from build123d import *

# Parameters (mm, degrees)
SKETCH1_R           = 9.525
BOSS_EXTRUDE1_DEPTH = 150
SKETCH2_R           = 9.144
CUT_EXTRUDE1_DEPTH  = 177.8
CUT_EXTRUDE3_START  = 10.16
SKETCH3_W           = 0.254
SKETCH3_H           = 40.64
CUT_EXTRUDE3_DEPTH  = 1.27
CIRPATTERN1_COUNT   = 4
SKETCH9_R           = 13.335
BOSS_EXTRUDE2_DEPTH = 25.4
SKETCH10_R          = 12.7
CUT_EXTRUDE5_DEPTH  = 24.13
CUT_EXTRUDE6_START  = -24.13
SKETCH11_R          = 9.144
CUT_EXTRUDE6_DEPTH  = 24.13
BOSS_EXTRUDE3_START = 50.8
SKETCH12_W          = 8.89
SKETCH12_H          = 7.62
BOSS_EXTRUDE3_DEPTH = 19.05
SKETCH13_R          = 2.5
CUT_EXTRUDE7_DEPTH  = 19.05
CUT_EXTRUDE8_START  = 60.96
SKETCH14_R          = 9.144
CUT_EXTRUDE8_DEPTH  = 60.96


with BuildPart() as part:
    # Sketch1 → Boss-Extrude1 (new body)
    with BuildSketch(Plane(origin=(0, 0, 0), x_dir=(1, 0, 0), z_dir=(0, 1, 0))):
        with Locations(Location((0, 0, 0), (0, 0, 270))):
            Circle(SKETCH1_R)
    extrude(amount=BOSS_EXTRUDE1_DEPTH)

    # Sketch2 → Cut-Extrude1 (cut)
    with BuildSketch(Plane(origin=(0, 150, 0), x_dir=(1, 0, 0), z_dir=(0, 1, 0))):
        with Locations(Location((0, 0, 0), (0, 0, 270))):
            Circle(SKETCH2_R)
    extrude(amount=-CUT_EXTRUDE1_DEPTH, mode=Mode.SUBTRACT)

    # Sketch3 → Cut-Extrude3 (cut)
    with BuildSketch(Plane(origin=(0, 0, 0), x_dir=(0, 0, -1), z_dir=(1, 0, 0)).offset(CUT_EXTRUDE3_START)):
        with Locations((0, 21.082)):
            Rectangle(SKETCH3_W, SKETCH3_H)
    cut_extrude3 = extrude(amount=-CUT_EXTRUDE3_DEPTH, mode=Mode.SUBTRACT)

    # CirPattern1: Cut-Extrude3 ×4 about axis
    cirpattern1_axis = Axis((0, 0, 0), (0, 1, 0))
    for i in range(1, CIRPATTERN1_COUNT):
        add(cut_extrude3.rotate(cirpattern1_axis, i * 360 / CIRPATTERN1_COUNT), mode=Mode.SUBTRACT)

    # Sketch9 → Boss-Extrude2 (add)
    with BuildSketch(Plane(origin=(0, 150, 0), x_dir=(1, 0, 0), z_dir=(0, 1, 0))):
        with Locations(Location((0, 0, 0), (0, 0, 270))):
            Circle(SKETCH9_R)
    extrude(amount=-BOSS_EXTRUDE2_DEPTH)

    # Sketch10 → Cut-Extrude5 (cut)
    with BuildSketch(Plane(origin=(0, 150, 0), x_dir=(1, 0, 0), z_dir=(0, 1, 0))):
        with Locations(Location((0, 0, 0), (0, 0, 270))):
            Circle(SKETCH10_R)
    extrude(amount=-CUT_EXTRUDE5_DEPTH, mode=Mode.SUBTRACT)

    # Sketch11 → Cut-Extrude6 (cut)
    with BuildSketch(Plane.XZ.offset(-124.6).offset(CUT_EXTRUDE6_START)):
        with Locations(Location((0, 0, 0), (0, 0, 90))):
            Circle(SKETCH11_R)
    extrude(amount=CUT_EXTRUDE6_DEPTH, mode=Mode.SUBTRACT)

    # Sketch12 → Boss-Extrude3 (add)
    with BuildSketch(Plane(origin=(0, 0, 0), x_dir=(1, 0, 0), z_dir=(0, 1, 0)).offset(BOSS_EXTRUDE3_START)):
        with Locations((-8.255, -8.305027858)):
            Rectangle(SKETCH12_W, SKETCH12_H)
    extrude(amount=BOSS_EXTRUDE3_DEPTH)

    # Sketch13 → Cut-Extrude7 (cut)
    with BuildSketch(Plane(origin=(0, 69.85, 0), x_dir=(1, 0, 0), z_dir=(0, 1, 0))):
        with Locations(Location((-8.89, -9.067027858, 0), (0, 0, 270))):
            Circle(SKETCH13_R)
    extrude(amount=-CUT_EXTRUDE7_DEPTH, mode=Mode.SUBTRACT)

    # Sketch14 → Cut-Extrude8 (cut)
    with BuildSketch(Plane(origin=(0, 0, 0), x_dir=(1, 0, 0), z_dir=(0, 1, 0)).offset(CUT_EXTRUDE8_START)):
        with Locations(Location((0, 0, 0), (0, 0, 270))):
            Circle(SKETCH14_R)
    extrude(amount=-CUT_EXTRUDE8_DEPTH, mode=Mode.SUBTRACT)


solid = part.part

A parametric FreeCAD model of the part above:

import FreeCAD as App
import Part
import Sketcher
from FreeCAD import Vector
Q = App.Units.Quantity

doc = App.newDocument("Part")
body = doc.addObject("PartDesign::Body", "Body")

# Sketch on XZ plane
sketch1 = body.newObject("Sketcher::SketchObject", "Sketch")
sketch1.AttachmentSupport = (doc.getObject("XZ_Plane"), [""])
sketch1.MapMode = "FlatFace"
sketch1.addGeometry(Part.Circle(Vector(0, 0, 0), Vector(0, 0, 1), 10), False)
sketch1.addConstraint(Sketcher.Constraint("Coincident", 0, 3, -1, 1))
sketch1.addConstraint(Sketcher.Constraint("Diameter", 0, Q("0.75 in")))
pad1 = body.newObject("PartDesign::Pad", "Pad")
pad1.Profile = sketch1
pad1.Length = 150
pad1.Reversed = True

# Sketch on XZ plane
sketch2 = body.newObject("Sketcher::SketchObject", "Sketch001")
sketch2.AttachmentSupport = (doc.getObject("XZ_Plane"), [""])
sketch2.MapMode = "FlatFace"
sketch2.AttachmentOffset = App.Placement(Vector(0, 0, -150), App.Rotation())
sketch2.addGeometry(Part.Circle(Vector(0, 0, 0), Vector(0, 0, 1), 9), False)
sketch2.addConstraint(Sketcher.Constraint("Coincident", 0, 3, -1, 1))
sketch2.addConstraint(Sketcher.Constraint("Diameter", 0, Q("0.72 in")))
pocket1 = body.newObject("PartDesign::Pocket", "Pocket")
pocket1.Profile = sketch2
pocket1.Length = Q("7 in")
pocket1.Reversed = True

# Sketch on YZ plane
sketch3 = body.newObject("Sketcher::SketchObject", "Sketch002")
sketch3.AttachmentSupport = (doc.getObject("YZ_Plane"), [""])
sketch3.MapMode = "FlatFace"
sketch3.AttachmentOffset = App.Placement(Vector(0, 0, 0.4 * 25.4), App.Rotation())
sketch3.addGeometry(Part.LineSegment(Vector(41.4, 0.13, 0), Vector(0.76, 0.13, 0)), False)
sketch3.addGeometry(Part.LineSegment(Vector(0.76, 0.13, 0), Vector(0.76, -0.13, 0)), False)
sketch3.addGeometry(Part.LineSegment(Vector(0.76, -0.13, 0), Vector(41.4, -0.13, 0)), False)
sketch3.addGeometry(Part.LineSegment(Vector(41.4, -0.13, 0), Vector(41.4, 0.13, 0)), False)
sketch3.addConstraint(Sketcher.Constraint("Coincident", 0, 2, 1, 1))
sketch3.addConstraint(Sketcher.Constraint("Coincident", 1, 2, 2, 1))
sketch3.addConstraint(Sketcher.Constraint("Coincident", 2, 2, 3, 1))
sketch3.addConstraint(Sketcher.Constraint("Coincident", 3, 2, 0, 1))
sketch3.addConstraint(Sketcher.Constraint("Horizontal", 0))
sketch3.addConstraint(Sketcher.Constraint("Vertical", 1))
sketch3.addConstraint(Sketcher.Constraint("Horizontal", 2))
sketch3.addConstraint(Sketcher.Constraint("Vertical", 3))
sketch3.addConstraint(Sketcher.Constraint("DistanceX", 0, 2, 0, 1, Q("1.6 in")))
sketch3.addConstraint(Sketcher.Constraint("DistanceY", 1, 2, 1, 1, Q("0.01 in")))
sketch3.addConstraint(Sketcher.Constraint("DistanceX", -1, 1, 0, 2, Q("0.03 in")))
sketch3.addConstraint(Sketcher.Constraint("DistanceY", -1, 1, 0, 2, Q("0.005 in")))
pocket2 = body.newObject("PartDesign::Pocket", "Pocket001")
pocket2.Profile = sketch3
pocket2.Length = Q("0.05 in")
doc.recompute()

polarpattern = body.newObject("PartDesign::PolarPattern", "PolarPattern")
polarpattern.Originals = [pocket2]
polarpattern.Axis = (doc.getObject("Y_Axis"), [""])
polarpattern.Angle = 360
polarpattern.Occurrences = 4
body.Tip = polarpattern

# Sketch on XZ plane
sketch4 = body.newObject("Sketcher::SketchObject", "Sketch003")
sketch4.AttachmentSupport = (doc.getObject("XZ_Plane"), [""])
sketch4.MapMode = "FlatFace"
sketch4.AttachmentOffset = App.Placement(Vector(0, 0, -150), App.Rotation())
sketch4.addGeometry(Part.Circle(Vector(0, 0, 0), Vector(0, 0, 1), 13), False)
sketch4.addConstraint(Sketcher.Constraint("Coincident", 0, 3, -1, 1))
sketch4.addConstraint(Sketcher.Constraint("Diameter", 0, Q("1.05 in")))
pad2 = body.newObject("PartDesign::Pad", "Pad001")
pad2.Profile = sketch4
pad2.Length = Q("1 in")

# Sketch on XZ plane
sketch5 = body.newObject("Sketcher::SketchObject", "Sketch004")
sketch5.AttachmentSupport = (doc.getObject("XZ_Plane"), [""])
sketch5.MapMode = "FlatFace"
sketch5.AttachmentOffset = App.Placement(Vector(0, 0, -150), App.Rotation())
sketch5.addGeometry(Part.Circle(Vector(0, 0, 0), Vector(0, 0, 1), 13), False)
sketch5.addConstraint(Sketcher.Constraint("Coincident", 0, 3, -1, 1))
sketch5.addConstraint(Sketcher.Constraint("Diameter", 0, Q("1 in")))
pocket3 = body.newObject("PartDesign::Pocket", "Pocket002")
pocket3.Profile = sketch5
pocket3.Length = Q("0.95 in")
pocket3.Reversed = True

# Sketch on XZ plane
sketch6 = body.newObject("Sketcher::SketchObject", "Sketch005")
sketch6.AttachmentSupport = (doc.getObject("XZ_Plane"), [""])
sketch6.MapMode = "FlatFace"
sketch6.AttachmentOffset = App.Placement(Vector(0, 0, -148.73), App.Rotation())
sketch6.addGeometry(Part.Circle(Vector(0, 0, 0), Vector(0, 0, 1), 9), False)
sketch6.addConstraint(Sketcher.Constraint("Coincident", 0, 3, -1, 1))
sketch6.addConstraint(Sketcher.Constraint("Diameter", 0, Q("0.72 in")))
pocket4 = body.newObject("PartDesign::Pocket", "Pocket003")
pocket4.Profile = sketch6
pocket4.Length = Q("0.95 in")
pocket4.Reversed = True

# Sketch on XZ plane
sketch7 = body.newObject("Sketcher::SketchObject", "Sketch006")
sketch7.AttachmentSupport = (doc.getObject("XZ_Plane"), [""])
sketch7.MapMode = "FlatFace"
sketch7.AttachmentOffset = App.Placement(Vector(0, 0, -2 * 25.4), App.Rotation())
sketch7.addGeometry(Part.LineSegment(Vector(-13, 4, 0), Vector(-13, 12, 0)), False)
sketch7.addGeometry(Part.LineSegment(Vector(-13, 12, 0), Vector(-4, 12, 0)), False)
sketch7.addGeometry(Part.LineSegment(Vector(-4, 12, 0), Vector(-4, 4, 0)), False)
sketch7.addGeometry(Part.LineSegment(Vector(-4, 4, 0), Vector(-13, 4, 0)), False)
sketch7.addConstraint(Sketcher.Constraint("Coincident", 0, 2, 1, 1))
sketch7.addConstraint(Sketcher.Constraint("Coincident", 1, 2, 2, 1))
sketch7.addConstraint(Sketcher.Constraint("Coincident", 2, 2, 3, 1))
sketch7.addConstraint(Sketcher.Constraint("Coincident", 3, 2, 0, 1))
sketch7.addConstraint(Sketcher.Constraint("Vertical", 0))
sketch7.addConstraint(Sketcher.Constraint("Horizontal", 1))
sketch7.addConstraint(Sketcher.Constraint("Vertical", 2))
sketch7.addConstraint(Sketcher.Constraint("Horizontal", 3))
sketch7.addConstraint(Sketcher.Constraint("DistanceY", 0, 1, 0, 2, Q("0.3 in")))
sketch7.addConstraint(Sketcher.Constraint("DistanceX", 1, 1, 1, 2, Q("0.35 in")))
sketch7.addConstraint(Sketcher.Constraint("DistanceX", 0, 2, -1, 1, Q("0.5 in")))
sketch7.addConstraint(Sketcher.Constraint("DistanceY", -1, 1, 0, 2, 12.115028))
pad3 = body.newObject("PartDesign::Pad", "Pad002")
pad3.Profile = sketch7
pad3.Length = Q("0.75 in")
pad3.Reversed = True

# Sketch on XZ plane
sketch8 = body.newObject("Sketcher::SketchObject", "Sketch007")
sketch8.AttachmentSupport = (doc.getObject("XZ_Plane"), [""])
sketch8.MapMode = "FlatFace"
sketch8.AttachmentOffset = App.Placement(Vector(0, 0, -2.75 * 25.4), App.Rotation())
sketch8.addGeometry(Part.Circle(Vector(-8.9, 9.1, 0), Vector(0, 0, 1), 2.5), False)
sketch8.addConstraint(Sketcher.Constraint("Diameter", 0, 5.0))
sketch8.addConstraint(Sketcher.Constraint("DistanceX", 0, 3, -1, 1, Q("0.35 in")))
sketch8.addConstraint(Sketcher.Constraint("DistanceY", -1, 1, 0, 3, 9.067028))
pocket5 = body.newObject("PartDesign::Pocket", "Pocket004")
pocket5.Profile = sketch8
pocket5.Length = Q("0.75 in")
pocket5.Reversed = True

# Sketch on XZ plane
sketch9 = body.newObject("Sketcher::SketchObject", "Sketch008")
sketch9.AttachmentSupport = (doc.getObject("XZ_Plane"), [""])
sketch9.MapMode = "FlatFace"
sketch9.AttachmentOffset = App.Placement(Vector(0, 0, -2.4 * 25.4), App.Rotation())
sketch9.addGeometry(Part.Circle(Vector(0, 0, 0), Vector(0, 0, 1), 9), False)
sketch9.addConstraint(Sketcher.Constraint("Coincident", 0, 3, -1, 1))
sketch9.addConstraint(Sketcher.Constraint("Diameter", 0, Q("0.72 in")))
pocket6 = body.newObject("PartDesign::Pocket", "Pocket005")
pocket6.Profile = sketch9
pocket6.Length = Q("2.4 in")
pocket6.Reversed = True

doc.recompute()
